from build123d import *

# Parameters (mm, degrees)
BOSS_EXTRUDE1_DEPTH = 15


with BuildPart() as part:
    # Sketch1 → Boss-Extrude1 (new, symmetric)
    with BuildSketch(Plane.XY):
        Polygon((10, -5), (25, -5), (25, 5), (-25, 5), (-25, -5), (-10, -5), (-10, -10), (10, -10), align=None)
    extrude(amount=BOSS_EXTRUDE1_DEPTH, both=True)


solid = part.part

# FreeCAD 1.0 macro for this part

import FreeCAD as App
import Part
import Sketcher

V = App.Vector


def add_polygon(sketch, points):
    """Adds a closed chain of lines whose ends are joined by coincident constraints."""
    first, n = sketch.GeometryCount, len(points)
    for a, b in zip(points, points[1:] + points[:1]):
        sketch.addGeometry(Part.LineSegment(App.Vector(*a, 0), App.Vector(*b, 0)), False)
    for i in range(n):
        sketch.addConstraint(Sketcher.Constraint("Coincident", first + i, 2, first + (i + 1) % n, 1))

doc = App.newDocument("Part")
body = doc.addObject("PartDesign::Body", "Body")

# Sketch on XY plane
sketch1 = doc.addObject("Sketcher::SketchObject", "Sketch")
body.addObject(sketch1)
sketch1.AttachmentSupport = (doc.XY_Plane, [""])
sketch1.MapMode = "FlatFace"
add_polygon(sketch1, [(10, -5), (25, -5), (25, 5), (-25, 5), (-25, -5), (-10, -5), (-10, -10), (10, -10)])  # lines 0-7
sketch1.addConstraint([
    Sketcher.Constraint("Horizontal", 0),
    Sketcher.Constraint("Vertical", 1),
    Sketcher.Constraint("Horizontal", 2),
    Sketcher.Constraint("Vertical", 3),
    Sketcher.Constraint("Horizontal", 4),
    Sketcher.Constraint("Vertical", 5),
    Sketcher.Constraint("Horizontal", 6),
    Sketcher.Constraint("Vertical", 7),
    Sketcher.Constraint("Symmetric", 0, 2, 2, 2, -1, 1),
    Sketcher.Constraint("Symmetric", 4, 2, 7, 2, -2),
    Sketcher.Constraint("DistanceX", 0, 1, 0, 2, 15.0),
    Sketcher.Constraint("DistanceX", 2, 2, 2, 1, 50.0),
    Sketcher.Constraint("DistanceY", 1, 1, 1, 2, 10.0),
    Sketcher.Constraint("DistanceY", 5, 2, 5, 1, 5.0),
])
pad1 = doc.addObject("PartDesign::Pad", "Pad")
body.addObject(pad1)
pad1.Profile = sketch1
pad1.Length = 30
pad1.Midplane = True

doc.recompute()
